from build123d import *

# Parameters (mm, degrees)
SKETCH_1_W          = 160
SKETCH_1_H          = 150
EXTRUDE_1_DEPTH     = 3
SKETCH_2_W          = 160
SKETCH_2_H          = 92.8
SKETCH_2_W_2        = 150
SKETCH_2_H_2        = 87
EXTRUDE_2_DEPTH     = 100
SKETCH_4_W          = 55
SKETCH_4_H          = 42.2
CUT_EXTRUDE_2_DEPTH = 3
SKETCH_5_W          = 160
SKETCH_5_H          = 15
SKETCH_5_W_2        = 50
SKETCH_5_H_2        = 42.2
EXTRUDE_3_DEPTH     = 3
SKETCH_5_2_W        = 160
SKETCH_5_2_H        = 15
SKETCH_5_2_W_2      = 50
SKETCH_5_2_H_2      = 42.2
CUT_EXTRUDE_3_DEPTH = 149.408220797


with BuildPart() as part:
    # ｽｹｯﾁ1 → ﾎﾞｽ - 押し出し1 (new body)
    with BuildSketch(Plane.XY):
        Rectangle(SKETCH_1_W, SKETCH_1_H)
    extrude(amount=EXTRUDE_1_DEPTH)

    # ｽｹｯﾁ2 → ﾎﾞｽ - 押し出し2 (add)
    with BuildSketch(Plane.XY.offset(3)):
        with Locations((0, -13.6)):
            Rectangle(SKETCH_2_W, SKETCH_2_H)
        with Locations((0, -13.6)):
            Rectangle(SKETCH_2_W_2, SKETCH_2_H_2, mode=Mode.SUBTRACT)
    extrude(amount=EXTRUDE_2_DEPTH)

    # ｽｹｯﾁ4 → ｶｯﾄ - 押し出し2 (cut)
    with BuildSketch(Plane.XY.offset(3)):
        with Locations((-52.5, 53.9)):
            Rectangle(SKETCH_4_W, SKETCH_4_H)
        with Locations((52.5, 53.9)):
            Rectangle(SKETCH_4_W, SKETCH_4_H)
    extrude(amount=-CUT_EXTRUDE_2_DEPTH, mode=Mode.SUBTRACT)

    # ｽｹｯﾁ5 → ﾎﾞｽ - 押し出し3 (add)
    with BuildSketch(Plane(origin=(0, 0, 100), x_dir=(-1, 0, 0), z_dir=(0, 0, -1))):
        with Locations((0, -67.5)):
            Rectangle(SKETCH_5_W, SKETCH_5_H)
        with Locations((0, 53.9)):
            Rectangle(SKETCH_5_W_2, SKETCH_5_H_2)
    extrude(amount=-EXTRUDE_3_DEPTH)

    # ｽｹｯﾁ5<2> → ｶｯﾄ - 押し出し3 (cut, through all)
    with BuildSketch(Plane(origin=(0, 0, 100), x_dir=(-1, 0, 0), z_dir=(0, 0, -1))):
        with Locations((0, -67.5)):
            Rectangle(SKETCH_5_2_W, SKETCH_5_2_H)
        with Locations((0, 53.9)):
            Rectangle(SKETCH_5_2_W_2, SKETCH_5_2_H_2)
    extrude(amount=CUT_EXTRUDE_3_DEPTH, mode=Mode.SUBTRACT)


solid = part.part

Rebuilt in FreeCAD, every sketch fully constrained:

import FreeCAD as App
import Part
import Sketcher
Q = App.Units.Quantity


def add_polygon(sketch, points):
    """Adds a closed chain of lines whose ends are joined by coincident constraints."""
    first, n = sketch.GeometryCount, len(points)
    for a, b in zip(points, points[1:] + points[:1]):
        sketch.addGeometry(Part.LineSegment(App.Vector(*a, 0), App.Vector(*b, 0)), False)
    for i in range(n):
        sketch.addConstraint(Sketcher.Constraint("Coincident", first + i, 2, first + (i + 1) % n, 1))

doc = App.newDocument("Part")
body = doc.addObject("PartDesign::Body", "Body")

sketch1 = body.newObject("Sketcher::SketchObject", "Sketch")
sketch1.AttachmentSupport = (doc.getObject("XY_Plane"), [""])
sketch1.MapMode = "FlatFace"
add_polygon(sketch1, [(-80, 75), (-80, -75), (80, -75), (80, 75)])
sketch1.addConstraint([
    Sketcher.Constraint("Vertical", 0),
    Sketcher.Constraint("Horizontal", 1),
    Sketcher.Constraint("Vertical", 2),
    Sketcher.Constraint("Horizontal", 3),
    Sketcher.Constraint("Symmetric", 0, 2, 2, 2, -1, 1),
    Sketcher.Constraint("DistanceX", 1, 1, 1, 2, Q("160 mm")),
    Sketcher.Constraint("DistanceY", 0, 2, 0, 1, Q("150 mm")),
])
pad1 = body.newObject("PartDesign::Pad", "Pad")
pad1.Profile = sketch1
pad1.Length = 3

sketch2 = body.newObject("Sketcher::SketchObject", "Sketch001")
sketch2.AttachmentSupport = (doc.getObject("XY_Plane"), [""])
sketch2.MapMode = "FlatFace"
sketch2.AttachmentOffset = App.Placement(App.Vector(0, 0, 3), App.Rotation())
add_polygon(sketch2, [(-80, 33), (-80, -60), (80, -60), (80, 33)])
add_polygon(sketch2, [(75, -57), (-75, -57), (-75, 30), (75, 30)])
sketch2.addConstraint([
    Sketcher.Constraint("Vertical", 0),
    Sketcher.Constraint("Horizontal", 1),
    Sketcher.Constraint("Vertical", 2),
    Sketcher.Constraint("Horizontal", 3),
    Sketcher.Constraint("Horizontal", 4),
    Sketcher.Constraint("Vertical", 5),
    Sketcher.Constraint("Horizontal", 6),
    Sketcher.Constraint("Vertical", 7),
    Sketcher.Constraint("DistanceX", 1, 1, 1, 2, Q("160 mm")),
    Sketcher.Constraint("DistanceX", 4, 2, 4, 1, Q("150 mm")),
    Sketcher.Constraint("DistanceY", 5, 1, 5, 2, Q("87 mm")),
    Sketcher.Constraint("DistanceY", 0, 2, 0, 1, Q("92.8 mm")),
    Sketcher.Constraint("DistanceX", 0, 2, -1, 1, Q("80 mm")),
    Sketcher.Constraint("DistanceY", 0, 2, -1, 1, Q("60 mm")),
    Sketcher.Constraint("DistanceX", 4, 2, -1, 1, Q("75 mm")),
    Sketcher.Constraint("DistanceY", 4, 2, -1, 1, Q("57.1 mm")),
])
pad2 = body.newObject("PartDesign::Pad", "Pad001")
pad2.Profile = sketch2
pad2.Length = 100

sketch3 = body.newObject("Sketcher::SketchObject", "Sketch002")
sketch3.AttachmentSupport = (doc.getObject("XY_Plane"), [""])
sketch3.MapMode = "FlatFace"
sketch3.AttachmentOffset = App.Placement(App.Vector(0, 0, 3), App.Rotation())
add_polygon(sketch3, [(-80, 75), (-80, 33), (-25, 33), (-25, 75)])
add_polygon(sketch3, [(25, 75), (25, 33), (80, 33), (80, 75)])
sketch3.addConstraint([
    Sketcher.Constraint("Vertical", 0),
    Sketcher.Constraint("Horizontal", 1),
    Sketcher.Constraint("Vertical", 2),
    Sketcher.Constraint("Horizontal", 3),
    Sketcher.Constraint("Vertical", 4),
    Sketcher.Constraint("Horizontal", 5),
    Sketcher.Constraint("Vertical", 6),
    Sketcher.Constraint("Horizontal", 7),
    Sketcher.Constraint("Symmetric", 1, 2, 4, 2, -2),
    Sketcher.Constraint("Symmetric", 3, 2, 6, 2, -2),
    Sketcher.Constraint("DistanceX", 1, 1, 1, 2, Q("55 mm")),
    Sketcher.Constraint("DistanceY", 0, 2, 0, 1, Q("42.2 mm")),
    Sketcher.Constraint("DistanceX", 0, 2, -1, 1, Q("80 mm")),
    Sketcher.Constraint("DistanceY", -1, 1, 2, 2, Q("75 mm")),
])
pocket1 = body.newObject("PartDesign::Pocket", "Pocket")
pocket1.Profile = sketch3
pocket1.Length = 3

sketch4 = body.newObject("Sketcher::SketchObject", "Sketch003")
sketch4.AttachmentSupport = (doc.getObject("XY_Plane"), [""])
sketch4.MapMode = "FlatFace"
sketch4.AttachmentOffset = App.Placement(App.Vector(0, 0, 100), App.Rotation())
add_polygon(sketch4, [(80, -60), (80, -75), (-80, -75), (-80, -60)])
add_polygon(sketch4, [(25, 75), (25, 33), (-25, 33), (-25, 75)])
sketch4.addConstraint([
    Sketcher.Constraint("Vertical", 0),
    Sketcher.Constraint("Horizontal", 1),
    Sketcher.Constraint("Vertical", 2),
    Sketcher.Constraint("Horizontal", 3),
    Sketcher.Constraint("Vertical", 4),
    Sketcher.Constraint("Horizontal", 5),
    Sketcher.Constraint("Vertical", 6),
    Sketcher.Constraint("Horizontal", 7),
    Sketcher.Constraint("DistanceX", 1, 2, 1, 1, Q("160 mm")),
    Sketcher.Constraint("DistanceX", 5, 2, 5, 1, Q("50 mm")),
    Sketcher.Constraint("DistanceY", 0, 2, 0, 1, Q("15 mm")),
    Sketcher.Constraint("DistanceY", 4, 2, 4, 1, Q("42.2 mm")),
    Sketcher.Constraint("DistanceX", -1, 1, 0, 2, Q("80 mm")),
    Sketcher.Constraint("DistanceY", 0, 2, -1, 1, Q("75 mm")),
    Sketcher.Constraint("DistanceX", -1, 1, 4, 2, Q("25 mm")),
    Sketcher.Constraint("DistanceY", -1, 1, 6, 2, Q("75 mm")),
])
pad3 = body.newObject("PartDesign::Pad", "Pad002")
pad3.Profile = sketch4
pad3.Length = 3

sketch5 = body.newObject("Sketcher::SketchObject", "Sketch004")
sketch5.AttachmentSupport = (doc.getObject("XY_Plane"), [""])
sketch5.MapMode = "FlatFace"
sketch5.AttachmentOffset = App.Placement(App.Vector(0, 0, 100), App.Rotation())
add_polygon(sketch5, [(80, -60), (80, -75), (-80, -75), (-80, -60)])
add_polygon(sketch5, [(25, 75), (25, 33), (-25, 33), (-25, 75)])
sketch5.addConstraint([
    Sketcher.Constraint("Vertical", 0),
    Sketcher.Constraint("Horizontal", 1),
    Sketcher.Constraint("Vertical", 2),
    Sketcher.Constraint("Horizontal", 3),
    Sketcher.Constraint("Vertical", 4),
    Sketcher.Constraint("Horizontal", 5),
    Sketcher.Constraint("Vertical", 6),
    Sketcher.Constraint("Horizontal", 7),
    Sketcher.Constraint("DistanceX", 1, 2, 1, 1, Q("160 mm")),
    Sketcher.Constraint("DistanceX", 5, 2, 5, 1, Q("50 mm")),
    Sketcher.Constraint("DistanceY", 0, 2, 0, 1, Q("15 mm")),
    Sketcher.Constraint("DistanceY", 4, 2, 4, 1, Q("42.2 mm")),
    Sketcher.Constraint("DistanceX", -1, 1, 0, 2, Q("80 mm")),
    Sketcher.Constraint("DistanceY", 0, 2, -1, 1, Q("75 mm")),
    Sketcher.Constraint("DistanceX", -1, 1, 4, 2, Q("25 mm")),
    Sketcher.Constraint("DistanceY", -1, 1, 6, 2, Q("75 mm")),
])
pocket2 = body.newObject("PartDesign::Pocket", "Pocket001")
pocket2.Profile = sketch5
pocket2.Type = "ThroughAll"

doc.recompute()
